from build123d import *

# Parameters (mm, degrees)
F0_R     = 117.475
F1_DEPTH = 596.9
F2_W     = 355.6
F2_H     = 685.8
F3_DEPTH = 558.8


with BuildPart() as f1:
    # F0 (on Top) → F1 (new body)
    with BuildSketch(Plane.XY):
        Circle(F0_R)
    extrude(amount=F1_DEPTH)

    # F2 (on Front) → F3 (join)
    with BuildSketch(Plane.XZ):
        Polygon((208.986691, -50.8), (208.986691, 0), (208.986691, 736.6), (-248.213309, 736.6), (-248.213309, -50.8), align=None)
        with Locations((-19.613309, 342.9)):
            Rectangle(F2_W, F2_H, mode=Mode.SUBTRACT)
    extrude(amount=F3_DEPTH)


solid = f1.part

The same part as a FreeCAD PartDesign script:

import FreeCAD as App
import Part
import Sketcher
from FreeCAD import Vector
Q = App.Units.Quantity


def add_polygon(sketch, points):
    """Adds a closed chain of lines whose ends are joined by coincident constraints."""
    first, n = sketch.GeometryCount, len(points)
    for a, b in zip(points, points[1:] + points[:1]):
        sketch.addGeometry(Part.LineSegment(App.Vector(*a, 0), App.Vector(*b, 0)), False)
    for i in range(n):
        sketch.addConstraint(Sketcher.Constraint("Coincident", first + i, 2, first + (i + 1) % n, 1))

doc = App.newDocument("Part")
body = doc.addObject("PartDesign::Body", "Body")

sketch1 = body.newObject("Sketcher::SketchObject", "Sketch")
sketch1.AttachmentSupport = (doc.getObject("XY_Plane"), [""])
sketch1.MapMode = "FlatFace"
sketch1.addGeometry(Part.Circle(Vector(0, 0, 0), Vector(0, 0, 1), 117.475), False)
sketch1.addConstraint(Sketcher.Constraint("Coincident", 0, 3, -1, 1))
sketch1.addConstraint(Sketcher.Constraint("Diameter", 0, Q("9.25 in")))
pad1 = body.newObject("PartDesign::Pad", "Pad")
pad1.Profile = sketch1
pad1.Length = Q("23.5 in")

sketch2 = body.newObject("Sketcher::SketchObject", "Sketch001")
sketch2.AttachmentSupport = (doc.getObject("XZ_Plane"), [""])
sketch2.MapMode = "FlatFace"
add_polygon(sketch2, [(208.986691, -50.8), (208.986691, 736.6), (-248.213309, 736.6), (-248.213309, -50.8)])
add_polygon(sketch2, [(158.186691, 0), (-197.413309, 0), (-197.413309, 685.8), (158.186691, 685.8)])
sketch2.addConstraint(Sketcher.Constraint("Vertical", 0))
sketch2.addConstraint(Sketcher.Constraint("Horizontal", 1))
sketch2.addConstraint(Sketcher.Constraint("Vertical", 2))
sketch2.addConstraint(Sketcher.Constraint("Horizontal", 3))
sketch2.addConstraint(Sketcher.Constraint("Horizontal", 4))
sketch2.addConstraint(Sketcher.Constraint("Vertical", 5))
sketch2.addConstraint(Sketcher.Constraint("Horizontal", 6))
sketch2.addConstraint(Sketcher.Constraint("Vertical", 7))
sketch2.addConstraint(Sketcher.Constraint("PointOnObject", 4, 2, -1))
sketch2.addConstraint(Sketcher.Constraint("DistanceX", 1, 2, 1, 1, Q("18 in")))
sketch2.addConstraint(Sketcher.Constraint("DistanceX", 4, 2, 4, 1, Q("14 in")))
sketch2.addConstraint(Sketcher.Constraint("DistanceY", 0, 1, 0, 2, Q("31 in")))
sketch2.addConstraint(Sketcher.Constraint("DistanceY", 5, 1, 5, 2, Q("27 in")))
sketch2.addConstraint(Sketcher.Constraint("DistanceY", -1, 1, 0, 2, Q("29 in")))
sketch2.addConstraint(Sketcher.Constraint("DistanceX", 2, 2, 4, 2, Q("2 in")))
sketch2.addConstraint(Sketcher.Constraint("DistanceX", -1, 1, 0, 2, 208.986691))
pad2 = body.newObject("PartDesign::Pad", "Pad001")
pad2.Profile = sketch2
pad2.Length = Q("22 in")

doc.recompute()
